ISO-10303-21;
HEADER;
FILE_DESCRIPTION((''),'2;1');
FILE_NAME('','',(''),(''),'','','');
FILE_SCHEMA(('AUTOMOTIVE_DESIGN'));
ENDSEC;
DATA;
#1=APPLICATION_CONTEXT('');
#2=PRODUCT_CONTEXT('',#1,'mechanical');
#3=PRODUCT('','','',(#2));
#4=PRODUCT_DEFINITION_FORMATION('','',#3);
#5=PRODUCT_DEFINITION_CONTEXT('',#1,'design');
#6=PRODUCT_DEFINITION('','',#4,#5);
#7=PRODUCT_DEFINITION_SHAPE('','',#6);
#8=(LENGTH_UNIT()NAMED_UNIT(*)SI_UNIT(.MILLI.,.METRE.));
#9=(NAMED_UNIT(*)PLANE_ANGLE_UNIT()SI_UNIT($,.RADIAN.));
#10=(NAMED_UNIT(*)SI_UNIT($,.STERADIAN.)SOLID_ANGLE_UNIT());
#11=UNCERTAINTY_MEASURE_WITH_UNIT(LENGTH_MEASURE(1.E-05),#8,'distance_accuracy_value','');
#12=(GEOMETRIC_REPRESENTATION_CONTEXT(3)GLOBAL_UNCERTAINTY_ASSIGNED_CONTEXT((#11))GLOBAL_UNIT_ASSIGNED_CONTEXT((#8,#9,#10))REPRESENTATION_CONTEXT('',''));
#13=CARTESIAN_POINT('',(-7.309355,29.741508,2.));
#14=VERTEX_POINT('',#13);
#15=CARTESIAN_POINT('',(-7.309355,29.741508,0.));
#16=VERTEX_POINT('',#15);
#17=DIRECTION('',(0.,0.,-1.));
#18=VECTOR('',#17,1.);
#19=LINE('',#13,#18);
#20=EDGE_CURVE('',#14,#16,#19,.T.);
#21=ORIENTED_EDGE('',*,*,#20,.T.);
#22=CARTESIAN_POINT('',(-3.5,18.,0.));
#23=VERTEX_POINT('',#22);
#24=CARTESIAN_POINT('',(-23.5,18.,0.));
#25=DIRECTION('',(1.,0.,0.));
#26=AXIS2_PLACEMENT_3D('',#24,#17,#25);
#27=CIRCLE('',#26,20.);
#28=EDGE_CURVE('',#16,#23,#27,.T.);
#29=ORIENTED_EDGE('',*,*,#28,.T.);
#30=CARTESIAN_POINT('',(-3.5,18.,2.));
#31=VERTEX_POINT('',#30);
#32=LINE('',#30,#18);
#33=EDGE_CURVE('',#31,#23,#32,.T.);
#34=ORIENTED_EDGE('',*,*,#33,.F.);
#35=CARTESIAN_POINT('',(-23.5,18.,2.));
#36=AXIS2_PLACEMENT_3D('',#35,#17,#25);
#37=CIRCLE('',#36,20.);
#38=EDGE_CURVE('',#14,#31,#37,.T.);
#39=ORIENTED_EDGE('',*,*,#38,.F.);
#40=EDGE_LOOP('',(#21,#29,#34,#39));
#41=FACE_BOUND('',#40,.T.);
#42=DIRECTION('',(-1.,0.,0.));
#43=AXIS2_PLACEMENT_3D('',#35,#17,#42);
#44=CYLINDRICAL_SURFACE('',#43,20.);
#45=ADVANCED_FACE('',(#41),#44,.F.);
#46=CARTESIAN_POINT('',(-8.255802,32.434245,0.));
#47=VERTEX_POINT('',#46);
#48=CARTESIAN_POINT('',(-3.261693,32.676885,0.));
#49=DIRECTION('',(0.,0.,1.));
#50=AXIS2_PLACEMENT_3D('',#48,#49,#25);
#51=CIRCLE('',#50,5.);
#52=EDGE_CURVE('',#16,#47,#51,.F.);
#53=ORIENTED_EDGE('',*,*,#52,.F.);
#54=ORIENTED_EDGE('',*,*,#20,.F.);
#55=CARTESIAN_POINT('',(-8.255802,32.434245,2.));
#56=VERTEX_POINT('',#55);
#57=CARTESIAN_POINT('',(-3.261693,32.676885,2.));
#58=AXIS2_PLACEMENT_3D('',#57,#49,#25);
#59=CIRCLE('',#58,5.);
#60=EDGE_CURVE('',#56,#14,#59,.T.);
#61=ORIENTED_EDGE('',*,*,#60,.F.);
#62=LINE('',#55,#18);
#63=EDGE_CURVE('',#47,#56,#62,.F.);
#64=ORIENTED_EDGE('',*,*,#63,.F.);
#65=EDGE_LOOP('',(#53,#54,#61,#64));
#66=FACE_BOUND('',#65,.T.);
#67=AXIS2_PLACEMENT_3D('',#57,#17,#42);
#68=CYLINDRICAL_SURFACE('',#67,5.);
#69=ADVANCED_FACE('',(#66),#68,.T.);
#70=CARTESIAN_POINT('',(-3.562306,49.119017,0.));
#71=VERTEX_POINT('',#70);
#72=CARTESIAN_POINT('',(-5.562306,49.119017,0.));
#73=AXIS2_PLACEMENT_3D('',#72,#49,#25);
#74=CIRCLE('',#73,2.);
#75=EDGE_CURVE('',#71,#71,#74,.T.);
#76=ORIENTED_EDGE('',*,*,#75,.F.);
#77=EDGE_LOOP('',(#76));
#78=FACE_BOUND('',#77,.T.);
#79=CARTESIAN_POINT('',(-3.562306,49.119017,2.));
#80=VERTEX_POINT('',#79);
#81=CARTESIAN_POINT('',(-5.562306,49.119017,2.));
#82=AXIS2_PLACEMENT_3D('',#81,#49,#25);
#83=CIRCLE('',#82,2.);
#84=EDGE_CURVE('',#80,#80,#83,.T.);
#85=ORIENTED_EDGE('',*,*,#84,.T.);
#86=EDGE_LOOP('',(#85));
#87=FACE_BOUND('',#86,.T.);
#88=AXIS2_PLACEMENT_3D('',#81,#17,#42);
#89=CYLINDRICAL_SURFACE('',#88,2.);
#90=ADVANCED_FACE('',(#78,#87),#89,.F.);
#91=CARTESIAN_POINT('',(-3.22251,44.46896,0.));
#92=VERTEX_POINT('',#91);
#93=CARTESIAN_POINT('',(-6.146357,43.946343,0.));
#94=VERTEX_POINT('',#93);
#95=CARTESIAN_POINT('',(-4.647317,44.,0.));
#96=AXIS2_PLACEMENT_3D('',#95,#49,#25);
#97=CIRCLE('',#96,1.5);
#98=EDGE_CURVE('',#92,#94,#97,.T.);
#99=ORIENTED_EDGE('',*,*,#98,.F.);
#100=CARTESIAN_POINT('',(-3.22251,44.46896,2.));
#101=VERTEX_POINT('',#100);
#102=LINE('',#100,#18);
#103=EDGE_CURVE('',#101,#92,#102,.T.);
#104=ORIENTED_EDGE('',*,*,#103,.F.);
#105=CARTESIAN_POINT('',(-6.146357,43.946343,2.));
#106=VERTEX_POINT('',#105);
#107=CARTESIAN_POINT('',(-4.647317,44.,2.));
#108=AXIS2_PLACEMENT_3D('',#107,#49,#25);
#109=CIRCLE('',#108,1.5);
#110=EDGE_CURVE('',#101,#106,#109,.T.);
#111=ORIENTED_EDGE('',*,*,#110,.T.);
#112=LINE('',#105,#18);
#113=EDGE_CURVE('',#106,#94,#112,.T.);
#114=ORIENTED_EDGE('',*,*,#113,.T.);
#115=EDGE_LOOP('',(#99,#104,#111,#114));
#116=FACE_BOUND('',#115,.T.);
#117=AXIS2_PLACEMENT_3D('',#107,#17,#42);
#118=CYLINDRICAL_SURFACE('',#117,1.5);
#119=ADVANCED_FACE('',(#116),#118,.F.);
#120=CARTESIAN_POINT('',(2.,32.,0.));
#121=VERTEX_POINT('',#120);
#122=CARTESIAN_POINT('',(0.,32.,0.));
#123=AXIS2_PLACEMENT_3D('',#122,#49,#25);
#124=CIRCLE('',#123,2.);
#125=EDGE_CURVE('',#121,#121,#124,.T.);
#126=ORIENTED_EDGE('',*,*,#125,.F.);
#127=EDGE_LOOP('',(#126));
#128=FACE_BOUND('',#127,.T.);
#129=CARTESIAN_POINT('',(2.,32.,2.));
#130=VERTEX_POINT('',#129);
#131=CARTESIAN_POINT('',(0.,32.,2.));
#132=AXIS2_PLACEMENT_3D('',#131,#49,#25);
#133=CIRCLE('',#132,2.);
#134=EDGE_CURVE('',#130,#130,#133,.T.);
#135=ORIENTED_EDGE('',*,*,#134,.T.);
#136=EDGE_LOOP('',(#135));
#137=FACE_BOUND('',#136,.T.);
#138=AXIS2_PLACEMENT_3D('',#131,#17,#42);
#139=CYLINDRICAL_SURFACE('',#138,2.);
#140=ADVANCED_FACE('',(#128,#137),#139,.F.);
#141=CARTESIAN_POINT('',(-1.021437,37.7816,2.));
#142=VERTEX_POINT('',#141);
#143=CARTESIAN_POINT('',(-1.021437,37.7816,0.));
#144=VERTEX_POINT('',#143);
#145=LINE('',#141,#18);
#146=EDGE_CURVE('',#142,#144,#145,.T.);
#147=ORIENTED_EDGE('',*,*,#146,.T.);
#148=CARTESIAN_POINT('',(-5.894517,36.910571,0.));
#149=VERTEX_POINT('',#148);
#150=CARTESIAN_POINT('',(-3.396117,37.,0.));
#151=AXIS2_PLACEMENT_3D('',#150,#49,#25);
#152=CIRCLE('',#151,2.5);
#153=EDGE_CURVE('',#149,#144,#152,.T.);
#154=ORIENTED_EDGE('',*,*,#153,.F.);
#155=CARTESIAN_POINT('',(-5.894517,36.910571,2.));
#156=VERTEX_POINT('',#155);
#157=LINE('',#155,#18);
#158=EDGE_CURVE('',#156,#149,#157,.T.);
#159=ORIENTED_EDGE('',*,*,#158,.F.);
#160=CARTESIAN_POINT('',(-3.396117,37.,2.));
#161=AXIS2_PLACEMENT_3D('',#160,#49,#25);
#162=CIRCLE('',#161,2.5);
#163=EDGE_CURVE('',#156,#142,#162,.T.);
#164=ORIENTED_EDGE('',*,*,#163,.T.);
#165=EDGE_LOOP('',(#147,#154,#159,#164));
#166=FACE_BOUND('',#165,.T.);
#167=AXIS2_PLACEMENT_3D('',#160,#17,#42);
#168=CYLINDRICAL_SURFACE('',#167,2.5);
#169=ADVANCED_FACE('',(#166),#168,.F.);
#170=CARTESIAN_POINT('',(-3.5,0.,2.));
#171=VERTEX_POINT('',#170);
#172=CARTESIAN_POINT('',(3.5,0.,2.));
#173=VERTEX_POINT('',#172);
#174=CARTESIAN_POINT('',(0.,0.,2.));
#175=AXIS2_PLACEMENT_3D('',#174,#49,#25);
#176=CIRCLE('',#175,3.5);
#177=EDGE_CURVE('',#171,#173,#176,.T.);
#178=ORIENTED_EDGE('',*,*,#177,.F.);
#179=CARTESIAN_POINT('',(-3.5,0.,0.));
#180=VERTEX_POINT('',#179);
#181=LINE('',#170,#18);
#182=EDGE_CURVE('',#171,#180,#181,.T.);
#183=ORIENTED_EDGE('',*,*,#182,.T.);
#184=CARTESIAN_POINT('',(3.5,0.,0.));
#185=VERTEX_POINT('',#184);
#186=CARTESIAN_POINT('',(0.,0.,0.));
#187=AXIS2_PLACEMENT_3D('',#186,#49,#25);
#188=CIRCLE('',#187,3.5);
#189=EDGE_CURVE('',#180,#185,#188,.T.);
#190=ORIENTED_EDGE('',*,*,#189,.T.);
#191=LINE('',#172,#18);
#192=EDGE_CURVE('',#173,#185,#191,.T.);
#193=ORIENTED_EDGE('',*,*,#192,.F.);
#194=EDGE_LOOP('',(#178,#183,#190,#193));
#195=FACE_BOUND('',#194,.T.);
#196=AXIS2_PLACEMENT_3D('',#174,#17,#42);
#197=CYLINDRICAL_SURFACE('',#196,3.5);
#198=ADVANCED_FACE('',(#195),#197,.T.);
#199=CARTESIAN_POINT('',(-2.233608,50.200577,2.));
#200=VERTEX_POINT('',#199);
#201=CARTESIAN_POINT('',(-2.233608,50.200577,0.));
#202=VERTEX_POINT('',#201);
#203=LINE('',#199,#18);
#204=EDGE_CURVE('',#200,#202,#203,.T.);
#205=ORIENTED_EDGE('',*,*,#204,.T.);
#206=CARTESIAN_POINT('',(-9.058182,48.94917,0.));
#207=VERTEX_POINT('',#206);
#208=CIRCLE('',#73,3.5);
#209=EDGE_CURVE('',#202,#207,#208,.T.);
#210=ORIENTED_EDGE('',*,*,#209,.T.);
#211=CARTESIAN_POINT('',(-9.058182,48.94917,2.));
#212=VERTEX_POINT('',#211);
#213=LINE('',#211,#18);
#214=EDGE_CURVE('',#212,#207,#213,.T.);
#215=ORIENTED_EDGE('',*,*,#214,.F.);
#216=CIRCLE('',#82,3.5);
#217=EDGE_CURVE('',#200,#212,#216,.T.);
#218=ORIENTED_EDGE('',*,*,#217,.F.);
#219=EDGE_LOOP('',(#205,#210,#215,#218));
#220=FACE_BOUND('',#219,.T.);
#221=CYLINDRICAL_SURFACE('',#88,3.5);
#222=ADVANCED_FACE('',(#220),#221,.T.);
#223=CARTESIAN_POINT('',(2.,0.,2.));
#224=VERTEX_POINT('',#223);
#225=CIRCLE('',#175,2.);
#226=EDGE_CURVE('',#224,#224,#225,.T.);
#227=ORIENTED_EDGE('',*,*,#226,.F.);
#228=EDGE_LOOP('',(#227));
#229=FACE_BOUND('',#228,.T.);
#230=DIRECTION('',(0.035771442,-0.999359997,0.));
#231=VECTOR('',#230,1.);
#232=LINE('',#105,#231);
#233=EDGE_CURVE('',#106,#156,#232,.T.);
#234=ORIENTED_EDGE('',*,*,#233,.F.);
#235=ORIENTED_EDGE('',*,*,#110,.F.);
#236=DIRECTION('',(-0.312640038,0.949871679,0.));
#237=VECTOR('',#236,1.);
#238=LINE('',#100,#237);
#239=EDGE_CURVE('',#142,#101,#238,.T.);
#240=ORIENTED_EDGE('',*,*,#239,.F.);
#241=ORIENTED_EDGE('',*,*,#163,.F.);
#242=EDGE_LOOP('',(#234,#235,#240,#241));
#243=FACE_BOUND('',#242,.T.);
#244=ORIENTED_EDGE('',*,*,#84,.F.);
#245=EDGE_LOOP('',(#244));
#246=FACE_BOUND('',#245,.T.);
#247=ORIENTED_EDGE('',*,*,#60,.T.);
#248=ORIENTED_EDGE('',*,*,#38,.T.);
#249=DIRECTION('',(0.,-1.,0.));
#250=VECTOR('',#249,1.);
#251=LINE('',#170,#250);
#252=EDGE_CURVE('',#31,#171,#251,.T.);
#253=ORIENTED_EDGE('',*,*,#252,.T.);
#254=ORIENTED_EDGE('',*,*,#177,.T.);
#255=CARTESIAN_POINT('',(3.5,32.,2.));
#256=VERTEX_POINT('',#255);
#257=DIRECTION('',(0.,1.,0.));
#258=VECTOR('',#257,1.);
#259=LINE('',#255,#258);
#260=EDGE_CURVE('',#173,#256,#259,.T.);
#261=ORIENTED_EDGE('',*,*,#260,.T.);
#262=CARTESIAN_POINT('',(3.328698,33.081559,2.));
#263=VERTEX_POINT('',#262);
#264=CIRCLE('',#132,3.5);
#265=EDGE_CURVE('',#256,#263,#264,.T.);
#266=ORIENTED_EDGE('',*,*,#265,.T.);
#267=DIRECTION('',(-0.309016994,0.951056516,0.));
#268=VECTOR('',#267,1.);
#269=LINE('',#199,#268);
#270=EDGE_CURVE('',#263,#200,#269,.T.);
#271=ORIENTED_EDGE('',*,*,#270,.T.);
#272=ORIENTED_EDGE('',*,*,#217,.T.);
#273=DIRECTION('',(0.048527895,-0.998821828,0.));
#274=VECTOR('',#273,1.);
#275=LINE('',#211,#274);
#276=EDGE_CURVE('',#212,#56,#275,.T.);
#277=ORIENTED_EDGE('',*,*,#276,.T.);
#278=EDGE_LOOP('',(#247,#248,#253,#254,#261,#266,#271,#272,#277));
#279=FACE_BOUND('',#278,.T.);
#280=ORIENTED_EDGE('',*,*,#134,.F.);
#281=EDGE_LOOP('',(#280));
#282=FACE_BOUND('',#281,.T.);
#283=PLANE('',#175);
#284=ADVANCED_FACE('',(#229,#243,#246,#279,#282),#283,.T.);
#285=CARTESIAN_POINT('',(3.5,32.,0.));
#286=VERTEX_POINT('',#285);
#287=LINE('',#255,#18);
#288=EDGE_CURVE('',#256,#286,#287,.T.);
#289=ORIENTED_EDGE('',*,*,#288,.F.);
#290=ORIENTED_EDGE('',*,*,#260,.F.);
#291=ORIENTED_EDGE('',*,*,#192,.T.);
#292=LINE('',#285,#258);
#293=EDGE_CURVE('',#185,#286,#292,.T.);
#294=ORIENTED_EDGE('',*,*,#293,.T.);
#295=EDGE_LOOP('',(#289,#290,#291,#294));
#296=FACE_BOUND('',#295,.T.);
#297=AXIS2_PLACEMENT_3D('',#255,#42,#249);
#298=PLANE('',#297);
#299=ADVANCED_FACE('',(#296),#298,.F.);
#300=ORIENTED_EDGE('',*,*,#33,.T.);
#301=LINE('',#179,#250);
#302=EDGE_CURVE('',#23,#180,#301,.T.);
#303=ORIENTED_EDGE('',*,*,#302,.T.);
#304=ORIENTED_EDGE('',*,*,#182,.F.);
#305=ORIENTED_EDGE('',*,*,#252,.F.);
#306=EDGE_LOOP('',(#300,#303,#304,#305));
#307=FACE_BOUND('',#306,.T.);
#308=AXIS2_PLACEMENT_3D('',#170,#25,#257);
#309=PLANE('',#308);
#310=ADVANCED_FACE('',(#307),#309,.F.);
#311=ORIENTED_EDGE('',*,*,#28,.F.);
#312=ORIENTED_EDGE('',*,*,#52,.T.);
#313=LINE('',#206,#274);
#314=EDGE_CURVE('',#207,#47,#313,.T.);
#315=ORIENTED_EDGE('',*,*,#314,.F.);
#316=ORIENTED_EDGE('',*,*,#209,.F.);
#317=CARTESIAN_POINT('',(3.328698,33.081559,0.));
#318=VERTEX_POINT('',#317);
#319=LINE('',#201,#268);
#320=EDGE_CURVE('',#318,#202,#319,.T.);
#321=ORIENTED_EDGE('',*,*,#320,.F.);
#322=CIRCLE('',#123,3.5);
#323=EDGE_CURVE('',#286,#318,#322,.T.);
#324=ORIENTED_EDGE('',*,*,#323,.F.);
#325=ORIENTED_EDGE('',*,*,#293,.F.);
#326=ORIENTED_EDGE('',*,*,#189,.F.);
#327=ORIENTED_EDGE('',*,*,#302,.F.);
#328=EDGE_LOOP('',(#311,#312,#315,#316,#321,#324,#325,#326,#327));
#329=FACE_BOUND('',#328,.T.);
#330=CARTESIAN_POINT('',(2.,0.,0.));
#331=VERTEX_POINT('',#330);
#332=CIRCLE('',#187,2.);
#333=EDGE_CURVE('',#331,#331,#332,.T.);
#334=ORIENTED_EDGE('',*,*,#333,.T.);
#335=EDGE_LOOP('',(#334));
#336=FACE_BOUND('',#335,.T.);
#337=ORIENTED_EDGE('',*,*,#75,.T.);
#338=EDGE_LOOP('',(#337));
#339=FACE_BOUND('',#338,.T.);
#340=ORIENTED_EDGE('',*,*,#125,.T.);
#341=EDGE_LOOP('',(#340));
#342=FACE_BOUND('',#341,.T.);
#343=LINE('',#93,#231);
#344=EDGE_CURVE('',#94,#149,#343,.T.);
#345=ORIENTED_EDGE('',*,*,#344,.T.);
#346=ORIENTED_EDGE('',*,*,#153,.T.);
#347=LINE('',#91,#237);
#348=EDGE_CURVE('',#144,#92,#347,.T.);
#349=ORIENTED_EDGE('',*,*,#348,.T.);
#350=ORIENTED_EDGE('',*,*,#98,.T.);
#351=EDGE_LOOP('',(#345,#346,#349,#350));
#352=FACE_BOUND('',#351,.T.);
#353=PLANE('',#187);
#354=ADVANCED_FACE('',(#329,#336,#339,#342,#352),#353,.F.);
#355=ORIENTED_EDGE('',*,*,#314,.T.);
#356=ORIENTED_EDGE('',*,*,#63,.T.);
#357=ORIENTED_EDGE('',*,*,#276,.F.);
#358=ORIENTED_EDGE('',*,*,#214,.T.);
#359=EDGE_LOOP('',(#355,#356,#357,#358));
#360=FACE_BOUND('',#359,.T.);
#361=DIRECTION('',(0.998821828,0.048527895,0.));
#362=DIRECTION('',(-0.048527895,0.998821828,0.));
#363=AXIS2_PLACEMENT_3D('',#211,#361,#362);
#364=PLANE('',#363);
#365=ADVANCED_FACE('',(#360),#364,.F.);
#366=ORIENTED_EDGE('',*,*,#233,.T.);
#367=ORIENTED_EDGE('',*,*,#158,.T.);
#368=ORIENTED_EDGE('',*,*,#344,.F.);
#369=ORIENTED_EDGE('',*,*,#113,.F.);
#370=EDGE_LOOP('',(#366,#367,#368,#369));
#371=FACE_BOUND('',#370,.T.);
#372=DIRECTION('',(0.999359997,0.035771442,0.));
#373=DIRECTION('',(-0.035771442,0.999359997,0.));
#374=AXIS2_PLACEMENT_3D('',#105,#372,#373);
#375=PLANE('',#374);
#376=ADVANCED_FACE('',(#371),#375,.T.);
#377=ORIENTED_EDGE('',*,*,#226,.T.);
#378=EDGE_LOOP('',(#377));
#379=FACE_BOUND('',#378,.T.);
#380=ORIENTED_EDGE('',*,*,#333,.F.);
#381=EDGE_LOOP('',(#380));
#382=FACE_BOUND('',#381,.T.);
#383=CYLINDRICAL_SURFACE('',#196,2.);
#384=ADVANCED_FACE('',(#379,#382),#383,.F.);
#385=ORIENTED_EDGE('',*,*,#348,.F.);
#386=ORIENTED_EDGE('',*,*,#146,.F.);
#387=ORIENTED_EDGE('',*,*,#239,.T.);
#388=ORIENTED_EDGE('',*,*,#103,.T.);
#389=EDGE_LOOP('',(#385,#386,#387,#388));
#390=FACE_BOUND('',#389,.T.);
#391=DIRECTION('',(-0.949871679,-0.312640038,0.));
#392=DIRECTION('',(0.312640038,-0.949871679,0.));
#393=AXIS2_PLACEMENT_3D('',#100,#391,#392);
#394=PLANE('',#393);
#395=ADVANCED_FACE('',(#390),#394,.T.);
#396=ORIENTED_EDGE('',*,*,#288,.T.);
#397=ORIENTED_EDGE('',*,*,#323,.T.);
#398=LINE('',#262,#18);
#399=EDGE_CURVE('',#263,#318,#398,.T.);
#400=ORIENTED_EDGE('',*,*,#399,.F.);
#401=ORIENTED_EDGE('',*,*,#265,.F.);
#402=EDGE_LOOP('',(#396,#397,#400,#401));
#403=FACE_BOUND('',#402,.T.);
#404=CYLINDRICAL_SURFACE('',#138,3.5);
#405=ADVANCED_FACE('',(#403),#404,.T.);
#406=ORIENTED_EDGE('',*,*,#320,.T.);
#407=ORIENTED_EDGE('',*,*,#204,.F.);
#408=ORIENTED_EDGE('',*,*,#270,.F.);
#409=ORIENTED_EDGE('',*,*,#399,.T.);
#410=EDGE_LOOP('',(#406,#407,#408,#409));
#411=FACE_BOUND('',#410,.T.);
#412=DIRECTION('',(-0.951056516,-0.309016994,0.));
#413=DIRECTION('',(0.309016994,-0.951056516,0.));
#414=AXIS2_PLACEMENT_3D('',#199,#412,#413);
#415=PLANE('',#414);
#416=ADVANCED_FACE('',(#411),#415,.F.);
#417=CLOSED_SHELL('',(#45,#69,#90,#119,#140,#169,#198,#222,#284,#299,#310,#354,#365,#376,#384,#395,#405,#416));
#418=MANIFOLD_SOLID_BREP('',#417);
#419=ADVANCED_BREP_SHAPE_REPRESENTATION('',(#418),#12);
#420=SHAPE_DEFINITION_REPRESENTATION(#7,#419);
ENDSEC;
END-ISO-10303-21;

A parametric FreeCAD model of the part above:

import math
import FreeCAD as App
import Part
import Sketcher
from FreeCAD import Vector
Q = App.Units.Quantity


def edges_at(feature, points):
    """Names of the edges that pass closest to the given points."""
    edges = feature.Shape.Edges
    near = lambda p: min(range(len(edges)), key=lambda i: edges[i].distToShape(Part.Vertex(*p))[0])
    return sorted({f"Edge{near(p) + 1}" for p in points})

doc = App.newDocument("Part")
body = doc.addObject("PartDesign::Body", "Body")

sketch1 = body.newObject("Sketcher::SketchObject", "Sketch")
sketch1.AttachmentSupport = (doc.getObject("XY_Plane"), [""])
sketch1.MapMode = "FlatFace"
sketch1.addGeometry([
    Part.LineSegment(Vector(3.5, 0, 0), Vector(3.5, 32, 0)),
    Part.ArcOfCircle(Part.Circle(Vector(0, 32, 0), Vector(0, 0, 1), 3.5), math.radians(0), math.radians(18)),
    Part.LineSegment(Vector(3.3, 33.1, 0), Vector(-2.2, 50.2, 0)),
    Part.ArcOfCircle(Part.Circle(Vector(-5.6, 49.1, 0), Vector(0, 0, 1), 3.5), math.radians(18), math.radians(183)),
    Part.LineSegment(Vector(-9.1, 48.9, 0), Vector(-8.2, 30.9, 0)),
    Part.ArcOfCircle(Part.Circle(Vector(-23.5, 18, 0), Vector(0, 0, 1), 20), math.radians(0), math.radians(40)),
    Part.LineSegment(Vector(-3.5, 18, 0), Vector(-3.5, 0, 0)),
    Part.ArcOfCircle(Part.Circle(Vector(0, 0, 0), Vector(0, 0, 1), 3.5), math.radians(180), math.radians(360)),
    Part.Circle(Vector(0, 0, 0), Vector(0, 0, 1), 2),
    Part.Circle(Vector(0, 32, 0), Vector(0, 0, 1), 2),
    Part.ArcOfCircle(Part.Circle(Vector(-4.6, 44, 0), Vector(0, 0, 1), 1.5), math.radians(18), math.radians(182)),
    Part.LineSegment(Vector(-3.2, 44.5, 0), Vector(-1, 37.8, 0)),
    Part.ArcOfCircle(Part.Circle(Vector(-3.4, 37, 0), Vector(0, 0, 1), 2.5), math.radians(-178), math.radians(18)),
    Part.LineSegment(Vector(-5.9, 36.9, 0), Vector(-6.1, 43.9, 0)),
    Part.Circle(Vector(-5.6, 49.1, 0), Vector(0, 0, 1), 2),
], False)
sketch1.addConstraint([
    Sketcher.Constraint("Tangent", 0, 2, 1, 1),
    Sketcher.Constraint("Tangent", 1, 2, 2, 1),
    Sketcher.Constraint("Tangent", 2, 2, 3, 1),
    Sketcher.Constraint("Tangent", 3, 2, 4, 1),
    Sketcher.Constraint("Coincident", 4, 2, 5, 2),
    Sketcher.Constraint("Tangent", 5, 1, 6, 1),
    Sketcher.Constraint("Tangent", 6, 2, 7, 1),
    Sketcher.Constraint("Tangent", 7, 2, 0, 1),
    Sketcher.Constraint("Tangent", 10, 1, 11, 1),
    Sketcher.Constraint("Tangent", 11, 2, 12, 2),
    Sketcher.Constraint("Tangent", 12, 1, 13, 1),
    Sketcher.Constraint("Tangent", 13, 2, 10, 2),
    Sketcher.Constraint("Vertical", 0),
    Sketcher.Constraint("Vertical", 6),
    Sketcher.Constraint("Coincident", 7, 3, -1, 1),
    Sketcher.Constraint("Coincident", 8, 3, -1, 1),
    Sketcher.Constraint("Coincident", 9, 3, 1, 3),
    Sketcher.Constraint("Coincident", 14, 3, 3, 3),
    Sketcher.Constraint("Equal", 1, 3),
    Sketcher.Constraint("Equal", 3, 7),
    Sketcher.Constraint("Equal", 8, 9),
    Sketcher.Constraint("Equal", 9, 14),
    Sketcher.Constraint("Diameter", 8, 4.0),
    Sketcher.Constraint("Radius", 5, 20.0),
    Sketcher.Constraint("Radius", 1, 3.5),
    Sketcher.Constraint("Radius", 10, 1.5),
    Sketcher.Constraint("Radius", 12, 2.5),
    Sketcher.Constraint("DistanceY", 0, 1, 0, 2, 32.0),
    Sketcher.Constraint("DistanceY", 6, 2, 6, 1, 18.0),
    Sketcher.Constraint("Angle", 2, Q("108 deg")),
    Sketcher.Constraint("Distance", 2, 18.0),
    Sketcher.Constraint("DistanceY", -1, 1, 10, 3, 44.0),
    Sketcher.Constraint("DistanceY", -1, 1, 12, 3, 37.0),
    Sketcher.Constraint("Angle", 13, Q("92.04999 deg")),
    Sketcher.Constraint("DistanceX", 10, 1, 2, 2, 0.988902),
    Sketcher.Constraint("Distance", 4, 18.11476),
])
pad1 = body.newObject("PartDesign::Pad", "Pad")
pad1.Profile = sketch1
pad1.Length = 2
doc.recompute()

fillet = body.newObject("PartDesign::Fillet", "Fillet")
fillet.Base = (pad1, edges_at(pad1, [(-8.179, 30.856, 1)]))
fillet.Radius = 5

doc.recompute()
